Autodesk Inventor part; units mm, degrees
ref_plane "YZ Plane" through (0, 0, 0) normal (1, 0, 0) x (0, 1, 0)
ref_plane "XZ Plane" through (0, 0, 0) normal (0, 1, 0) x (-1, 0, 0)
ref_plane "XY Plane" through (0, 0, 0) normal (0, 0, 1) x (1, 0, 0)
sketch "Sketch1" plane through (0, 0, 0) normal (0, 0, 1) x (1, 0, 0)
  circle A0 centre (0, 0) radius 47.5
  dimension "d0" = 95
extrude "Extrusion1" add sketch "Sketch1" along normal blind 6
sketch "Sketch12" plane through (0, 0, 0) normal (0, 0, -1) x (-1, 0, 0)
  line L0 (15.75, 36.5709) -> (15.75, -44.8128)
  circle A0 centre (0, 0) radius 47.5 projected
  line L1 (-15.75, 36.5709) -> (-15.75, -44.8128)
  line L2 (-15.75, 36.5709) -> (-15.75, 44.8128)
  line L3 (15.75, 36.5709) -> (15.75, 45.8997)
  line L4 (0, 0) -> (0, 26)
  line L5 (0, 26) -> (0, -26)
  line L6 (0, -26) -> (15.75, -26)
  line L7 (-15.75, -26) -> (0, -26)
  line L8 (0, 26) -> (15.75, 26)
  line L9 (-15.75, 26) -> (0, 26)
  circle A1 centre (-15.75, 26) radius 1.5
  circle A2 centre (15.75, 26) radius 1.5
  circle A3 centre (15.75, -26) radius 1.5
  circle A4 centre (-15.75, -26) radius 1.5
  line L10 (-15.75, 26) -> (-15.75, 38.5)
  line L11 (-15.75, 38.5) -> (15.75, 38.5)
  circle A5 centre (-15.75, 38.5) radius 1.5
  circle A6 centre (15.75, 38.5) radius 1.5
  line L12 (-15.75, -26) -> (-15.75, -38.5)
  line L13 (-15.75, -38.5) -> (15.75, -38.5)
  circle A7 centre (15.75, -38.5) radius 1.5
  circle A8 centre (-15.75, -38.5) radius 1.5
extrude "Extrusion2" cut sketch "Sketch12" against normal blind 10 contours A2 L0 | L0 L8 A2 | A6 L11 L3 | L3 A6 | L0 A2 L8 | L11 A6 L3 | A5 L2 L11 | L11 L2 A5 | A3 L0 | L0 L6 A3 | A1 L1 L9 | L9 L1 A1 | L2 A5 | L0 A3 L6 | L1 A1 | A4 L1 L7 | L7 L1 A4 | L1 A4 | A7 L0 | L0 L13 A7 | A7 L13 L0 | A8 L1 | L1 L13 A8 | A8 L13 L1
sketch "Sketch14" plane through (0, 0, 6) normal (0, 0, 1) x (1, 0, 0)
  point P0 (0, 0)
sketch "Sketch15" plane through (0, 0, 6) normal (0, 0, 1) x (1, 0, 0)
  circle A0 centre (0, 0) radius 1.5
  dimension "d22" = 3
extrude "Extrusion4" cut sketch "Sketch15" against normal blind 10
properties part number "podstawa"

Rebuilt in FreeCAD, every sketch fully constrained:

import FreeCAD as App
import Part
import Sketcher

doc = App.newDocument("Part")
body = doc.addObject("PartDesign::Body", "Body")

sketch1 = doc.addObject("Sketcher::SketchObject", "Sketch")
body.addObject(sketch1)
sketch1.AttachmentSupport = (doc.XY_Plane, [""])
sketch1.MapMode = "FlatFace"
sketch1.addGeometry(Part.Circle(App.Vector(0, 0, 0), App.Vector(0, 0, 1), 48), False)
sketch1.addConstraint(Sketcher.Constraint("Coincident", 0, 3, -1, 1))
sketch1.addConstraint(Sketcher.Constraint("Diameter", 0, 95.0))
pad1 = doc.addObject("PartDesign::Pad", "Pad")
body.addObject(pad1)
pad1.Profile = sketch1
pad1.Length = 6

sketch2 = doc.addObject("Sketcher::SketchObject", "Sketch001")
body.addObject(sketch2)
sketch2.AttachmentSupport = (doc.XY_Plane, [""])
sketch2.MapMode = "FlatFace"
sketch2.addGeometry(Part.Circle(App.Vector(-15.8, 26, 0), App.Vector(0, 0, 1), 1.5), False)
sketch2.addGeometry(Part.Circle(App.Vector(-15.8, 38.5, 0), App.Vector(0, 0, 1), 1.5), False)
sketch2.addGeometry(Part.Circle(App.Vector(15.8, 38.5, 0), App.Vector(0, 0, 1), 1.5), False)
sketch2.addGeometry(Part.Circle(App.Vector(-15.8, -26, 0), App.Vector(0, 0, 1), 1.5), False)
sketch2.addGeometry(Part.Circle(App.Vector(15.8, 26, 0), App.Vector(0, 0, 1), 1.5), False)
sketch2.addGeometry(Part.Circle(App.Vector(15.8, -26, 0), App.Vector(0, 0, 1), 1.5), False)
sketch2.addGeometry(Part.Circle(App.Vector(-15.8, -38.5, 0), App.Vector(0, 0, 1), 1.5), False)
sketch2.addGeometry(Part.Circle(App.Vector(15.8, -38.5, 0), App.Vector(0, 0, 1), 1.5), False)
sketch2.addConstraint(Sketcher.Constraint("Equal", 0, 1))
sketch2.addConstraint(Sketcher.Constraint("Equal", 1, 2))
sketch2.addConstraint(Sketcher.Constraint("Equal", 2, 3))
sketch2.addConstraint(Sketcher.Constraint("Equal", 3, 4))
sketch2.addConstraint(Sketcher.Constraint("Equal", 4, 5))
sketch2.addConstraint(Sketcher.Constraint("Equal", 5, 6))
sketch2.addConstraint(Sketcher.Constraint("Equal", 6, 7))
sketch2.addConstraint(Sketcher.Constraint("Symmetric", 3, 3, 4, 3, -1, 1))
sketch2.addConstraint(Sketcher.Constraint("Symmetric", 0, 3, 5, 3, -1, 1))
sketch2.addConstraint(Sketcher.Constraint("Symmetric", 2, 3, 6, 3, -1, 1))
sketch2.addConstraint(Sketcher.Constraint("Symmetric", 1, 3, 7, 3, -1, 1))
sketch2.addConstraint(Sketcher.Constraint("Symmetric", 1, 3, 2, 3, -2))
sketch2.addConstraint(Sketcher.Constraint("Symmetric", 0, 3, 4, 3, -2))
sketch2.addConstraint(Sketcher.Constraint("Vertical", 0, 3, 1, 3))
sketch2.addConstraint(Sketcher.Constraint("Diameter", 0, 3.0))
sketch2.addConstraint(Sketcher.Constraint("DistanceY", -1, 1, 0, 3, 26.0))
sketch2.addConstraint(Sketcher.Constraint("DistanceY", 6, 3, 1, 3, 77.0))
sketch2.addConstraint(Sketcher.Constraint("DistanceX", 1, 3, 2, 3, 31.5))
pocket1 = doc.addObject("PartDesign::Pocket", "Pocket")
body.addObject(pocket1)
pocket1.Profile = sketch2
pocket1.Length = 10
pocket1.Reversed = True

sketch3 = doc.addObject("Sketcher::SketchObject", "Sketch002")
body.addObject(sketch3)
sketch3.AttachmentSupport = (doc.XY_Plane, [""])
sketch3.MapMode = "FlatFace"
sketch3.AttachmentOffset = App.Placement(App.Vector(0, 0, 6), App.Rotation())
sketch3.addGeometry(Part.Circle(App.Vector(0, 0, 0), App.Vector(0, 0, 1), 1.5), False)
sketch3.addConstraint(Sketcher.Constraint("Coincident", 0, 3, -1, 1))
sketch3.addConstraint(Sketcher.Constraint("Diameter", 0, 3.0))
pocket2 = doc.addObject("PartDesign::Pocket", "Pocket001")
body.addObject(pocket2)
pocket2.Profile = sketch3
pocket2.Length = 10

doc.recompute()
